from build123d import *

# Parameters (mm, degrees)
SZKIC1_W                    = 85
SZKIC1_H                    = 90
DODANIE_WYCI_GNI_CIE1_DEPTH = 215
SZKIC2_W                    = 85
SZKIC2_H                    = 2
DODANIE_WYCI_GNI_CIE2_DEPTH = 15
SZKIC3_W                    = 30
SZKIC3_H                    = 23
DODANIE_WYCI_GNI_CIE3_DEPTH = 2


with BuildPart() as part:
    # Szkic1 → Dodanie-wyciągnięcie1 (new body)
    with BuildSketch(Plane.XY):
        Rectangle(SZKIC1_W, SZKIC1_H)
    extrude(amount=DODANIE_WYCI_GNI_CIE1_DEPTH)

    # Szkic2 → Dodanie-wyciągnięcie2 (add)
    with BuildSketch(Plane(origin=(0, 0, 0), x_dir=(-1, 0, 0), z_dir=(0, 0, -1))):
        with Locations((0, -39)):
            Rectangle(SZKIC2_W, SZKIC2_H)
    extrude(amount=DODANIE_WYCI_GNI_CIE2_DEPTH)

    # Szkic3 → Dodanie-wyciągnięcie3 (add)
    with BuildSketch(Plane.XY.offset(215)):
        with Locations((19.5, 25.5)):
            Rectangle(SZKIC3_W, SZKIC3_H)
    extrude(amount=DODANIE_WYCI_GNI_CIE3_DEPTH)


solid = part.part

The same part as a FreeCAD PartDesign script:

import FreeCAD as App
import Part
import Sketcher
from FreeCAD import Vector
Q = App.Units.Quantity


def add_polygon(sketch, points):
    """Adds a closed chain of lines whose ends are joined by coincident constraints."""
    first, n = sketch.GeometryCount, len(points)
    for a, b in zip(points, points[1:] + points[:1]):
        sketch.addGeometry(Part.LineSegment(App.Vector(*a, 0), App.Vector(*b, 0)), False)
    for i in range(n):
        sketch.addConstraint(Sketcher.Constraint("Coincident", first + i, 2, first + (i + 1) % n, 1))

doc = App.newDocument("Part")
body = doc.addObject("PartDesign::Body", "Body")

# Sketch on XY plane
sketch1 = body.newObject("Sketcher::SketchObject", "Sketch")
sketch1.AttachmentSupport = (doc.getObject("XY_Plane"), [""])
sketch1.MapMode = "FlatFace"
add_polygon(sketch1, [(-42, 45), (-42, -45), (42, -45), (42, 45)])  # lines 0-3
sketch1.addConstraint([
    Sketcher.Constraint("Vertical", 0),
    Sketcher.Constraint("Horizontal", 1),
    Sketcher.Constraint("Vertical", 2),
    Sketcher.Constraint("Horizontal", 3),
    Sketcher.Constraint("Symmetric", 0, 2, 2, 2, -1, 1),
    Sketcher.Constraint("DistanceX", 1, 1, 1, 2, Q("85 mm")),
    Sketcher.Constraint("DistanceY", 0, 2, 0, 1, Q("90 mm")),
])
pad1 = body.newObject("PartDesign::Pad", "Pad")
pad1.Profile = sketch1
pad1.Length = 215

# Sketch on XY plane
sketch2 = body.newObject("Sketcher::SketchObject", "Sketch001")
sketch2.AttachmentSupport = (doc.getObject("XY_Plane"), [""])
sketch2.MapMode = "FlatFace"
add_polygon(sketch2, [(42.5, -38), (42.5, -40), (-42.5, -40), (-42.5, -38)])  # lines 0-3
sketch2.addConstraint([
    Sketcher.Constraint("Vertical", 0),
    Sketcher.Constraint("Horizontal", 1),
    Sketcher.Constraint("Vertical", 2),
    Sketcher.Constraint("Horizontal", 3),
    Sketcher.Constraint("DistanceX", 1, 2, 1, 1, Q("85 mm")),
    Sketcher.Constraint("DistanceY", 0, 2, 0, 1, Q("2 mm")),
    Sketcher.Constraint("DistanceY", 0, 2, -1, 1, Q("40 mm")),
    Sketcher.Constraint("DistanceX", -1, 1, 0, 2, Q("42.5 mm")),
])
pad2 = body.newObject("PartDesign::Pad", "Pad001")
pad2.Profile = sketch2
pad2.Length = 15
pad2.Reversed = True

# Sketch on XY plane
sketch3 = body.newObject("Sketcher::SketchObject", "Sketch002")
sketch3.AttachmentSupport = (doc.getObject("XY_Plane"), [""])
sketch3.MapMode = "FlatFace"
sketch3.AttachmentOffset = App.Placement(Vector(0, 0, 215), App.Rotation())
add_polygon(sketch3, [(4, 37), (4, 14), (34, 14), (34, 37)])  # lines 0-3
sketch3.addConstraint([
    Sketcher.Constraint("Vertical", 0),
    Sketcher.Constraint("Horizontal", 1),
    Sketcher.Constraint("Vertical", 2),
    Sketcher.Constraint("Horizontal", 3),
    Sketcher.Constraint("DistanceX", 1, 1, 1, 2, Q("30 mm")),
    Sketcher.Constraint("DistanceY", 0, 2, 0, 1, Q("23 mm")),
    Sketcher.Constraint("DistanceY", -1, 1, 0, 2, Q("14 mm")),
    Sketcher.Constraint("DistanceX", -1, 1, 0, 2, Q("4.5 mm")),
])
pad3 = body.newObject("PartDesign::Pad", "Pad002")
pad3.Profile = sketch3
pad3.Length = 2

doc.recompute()
